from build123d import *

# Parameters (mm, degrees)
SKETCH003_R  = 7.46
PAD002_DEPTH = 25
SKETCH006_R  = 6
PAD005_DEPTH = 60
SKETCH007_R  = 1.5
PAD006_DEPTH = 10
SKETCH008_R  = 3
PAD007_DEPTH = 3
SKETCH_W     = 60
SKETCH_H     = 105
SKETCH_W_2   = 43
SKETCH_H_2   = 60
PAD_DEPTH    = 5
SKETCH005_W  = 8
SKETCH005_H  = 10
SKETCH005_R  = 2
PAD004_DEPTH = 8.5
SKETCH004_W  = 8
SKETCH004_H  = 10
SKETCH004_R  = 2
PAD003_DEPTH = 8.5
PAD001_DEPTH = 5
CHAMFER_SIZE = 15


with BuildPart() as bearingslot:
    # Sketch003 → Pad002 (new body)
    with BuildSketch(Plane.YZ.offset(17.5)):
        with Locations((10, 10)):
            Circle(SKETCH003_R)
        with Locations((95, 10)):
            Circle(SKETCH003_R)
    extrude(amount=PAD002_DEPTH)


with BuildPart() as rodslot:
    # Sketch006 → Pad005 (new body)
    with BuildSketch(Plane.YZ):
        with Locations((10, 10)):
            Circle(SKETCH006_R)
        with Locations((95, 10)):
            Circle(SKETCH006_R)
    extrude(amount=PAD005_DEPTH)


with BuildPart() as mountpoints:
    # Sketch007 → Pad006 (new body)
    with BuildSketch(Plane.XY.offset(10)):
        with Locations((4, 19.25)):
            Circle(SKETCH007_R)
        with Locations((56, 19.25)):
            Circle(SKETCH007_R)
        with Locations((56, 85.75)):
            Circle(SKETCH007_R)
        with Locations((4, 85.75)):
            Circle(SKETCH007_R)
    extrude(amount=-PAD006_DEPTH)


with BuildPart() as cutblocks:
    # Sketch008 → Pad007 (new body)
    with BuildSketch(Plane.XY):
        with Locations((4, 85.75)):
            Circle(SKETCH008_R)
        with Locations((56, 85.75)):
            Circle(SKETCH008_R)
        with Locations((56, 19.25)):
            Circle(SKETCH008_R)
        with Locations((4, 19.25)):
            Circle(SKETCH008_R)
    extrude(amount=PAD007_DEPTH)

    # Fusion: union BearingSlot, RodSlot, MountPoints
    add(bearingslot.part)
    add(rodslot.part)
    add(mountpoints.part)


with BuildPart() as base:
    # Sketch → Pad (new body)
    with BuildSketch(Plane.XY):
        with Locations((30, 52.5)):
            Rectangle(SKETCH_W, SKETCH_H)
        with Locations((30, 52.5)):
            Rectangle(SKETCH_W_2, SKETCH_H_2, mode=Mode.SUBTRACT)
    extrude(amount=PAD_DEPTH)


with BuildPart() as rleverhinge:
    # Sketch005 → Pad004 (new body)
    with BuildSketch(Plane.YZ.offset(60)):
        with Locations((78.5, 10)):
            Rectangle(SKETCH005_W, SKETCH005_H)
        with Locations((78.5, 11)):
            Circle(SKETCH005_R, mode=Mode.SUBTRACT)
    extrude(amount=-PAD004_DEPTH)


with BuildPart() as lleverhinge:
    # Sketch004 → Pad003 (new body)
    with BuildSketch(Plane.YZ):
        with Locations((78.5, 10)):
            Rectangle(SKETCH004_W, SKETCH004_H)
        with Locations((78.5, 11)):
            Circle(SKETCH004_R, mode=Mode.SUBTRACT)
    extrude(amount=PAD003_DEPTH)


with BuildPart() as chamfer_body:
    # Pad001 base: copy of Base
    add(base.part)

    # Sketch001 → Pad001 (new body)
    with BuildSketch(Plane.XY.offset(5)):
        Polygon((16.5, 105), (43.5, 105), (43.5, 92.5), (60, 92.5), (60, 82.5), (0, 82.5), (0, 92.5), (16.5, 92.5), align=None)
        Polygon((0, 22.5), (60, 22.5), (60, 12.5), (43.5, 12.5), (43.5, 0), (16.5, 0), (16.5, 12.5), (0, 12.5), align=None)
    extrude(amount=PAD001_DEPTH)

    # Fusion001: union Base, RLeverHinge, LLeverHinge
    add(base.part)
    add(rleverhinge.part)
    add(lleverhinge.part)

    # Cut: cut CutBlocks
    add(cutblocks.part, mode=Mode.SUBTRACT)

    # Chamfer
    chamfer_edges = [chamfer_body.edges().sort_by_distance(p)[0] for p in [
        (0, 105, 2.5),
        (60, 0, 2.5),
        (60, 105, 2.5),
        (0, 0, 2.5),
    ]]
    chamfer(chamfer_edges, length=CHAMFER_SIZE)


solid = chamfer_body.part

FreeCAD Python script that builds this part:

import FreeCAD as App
import Part
import Sketcher


def edges_at(feature, points):
    """Names of the edges that pass closest to the given points."""
    edges = feature.Shape.Edges
    near = lambda p: min(range(len(edges)), key=lambda i: edges[i].distToShape(Part.Vertex(*p))[0])
    return sorted({f"Edge{near(p) + 1}" for p in points})


def add_polygon(sketch, points):
    """Adds a closed chain of lines whose ends are joined by coincident constraints."""
    first, n = sketch.GeometryCount, len(points)
    for a, b in zip(points, points[1:] + points[:1]):
        sketch.addGeometry(Part.LineSegment(App.Vector(*a, 0), App.Vector(*b, 0)), False)
    for i in range(n):
        sketch.addConstraint(Sketcher.Constraint("Coincident", first + i, 2, first + (i + 1) % n, 1))

doc = App.newDocument("Part")
body = doc.addObject("PartDesign::Body", "Body")
body.AllowCompound = True

# Sketch on YZ plane
sketch1 = doc.addObject("Sketcher::SketchObject", "Sketch")
body.addObject(sketch1)
sketch1.AttachmentSupport = (doc.YZ_Plane, [""])
sketch1.MapMode = "FlatFace"
sketch1.AttachmentOffset = App.Placement(App.Vector(0, 0, 17.5), App.Rotation())
sketch1.addGeometry([
    Part.Circle(App.Vector(10, 10, 0), App.Vector(0, 0, 1), 7),
    Part.Circle(App.Vector(95, 10, 0), App.Vector(0, 0, 1), 7),
], False)
sketch1.addConstraint([
    Sketcher.Constraint("Equal", 0, 1),
    Sketcher.Constraint("Horizontal", 0, 3, 1, 3),
    Sketcher.Constraint("Diameter", 0, 14.92),
    Sketcher.Constraint("DistanceX", -1, 1, 0, 3, 10.0),
    Sketcher.Constraint("DistanceY", -1, 1, 0, 3, 10.0),
    Sketcher.Constraint("DistanceX", -1, 1, 1, 3, 95.0),
])
pad1 = doc.addObject("PartDesign::Pad", "Pad")
body.addObject(pad1)
pad1.Profile = sketch1
pad1.Length = 25
body2 = doc.addObject("PartDesign::Body", "Body001")
body2.AllowCompound = True

# Sketch on YZ plane
sketch2 = doc.addObject("Sketcher::SketchObject", "Sketch001")
body2.addObject(sketch2)
sketch2.AttachmentSupport = (doc.getObject("YZ_Plane001"), [""])
sketch2.MapMode = "FlatFace"
sketch2.addGeometry([
    Part.Circle(App.Vector(10, 10, 0), App.Vector(0, 0, 1), 6),
    Part.Circle(App.Vector(95, 10, 0), App.Vector(0, 0, 1), 6),
], False)
sketch2.addConstraint([
    Sketcher.Constraint("Equal", 0, 1),
    Sketcher.Constraint("Horizontal", 0, 3, 1, 3),
    Sketcher.Constraint("Diameter", 0, 12.0),
    Sketcher.Constraint("DistanceX", -1, 1, 0, 3, 10.0),
    Sketcher.Constraint("DistanceY", -1, 1, 0, 3, 10.0),
    Sketcher.Constraint("DistanceX", -1, 1, 1, 3, 95.0),
])
pad2 = doc.addObject("PartDesign::Pad", "Pad001")
body2.addObject(pad2)
pad2.Profile = sketch2
pad2.Length = 60
body3 = doc.addObject("PartDesign::Body", "Body002")
body3.AllowCompound = True

# Sketch on XY plane
sketch3 = doc.addObject("Sketcher::SketchObject", "Sketch002")
body3.addObject(sketch3)
sketch3.AttachmentSupport = (doc.getObject("XY_Plane002"), [""])
sketch3.MapMode = "FlatFace"
sketch3.AttachmentOffset = App.Placement(App.Vector(0, 0, 10), App.Rotation())
sketch3.addGeometry([
    Part.Circle(App.Vector(4, 19.2, 0), App.Vector(0, 0, 1), 1.5),
    Part.Circle(App.Vector(56, 19.2, 0), App.Vector(0, 0, 1), 1.5),
    Part.Circle(App.Vector(56, 85.8, 0), App.Vector(0, 0, 1), 1.5),
    Part.Circle(App.Vector(4, 85.8, 0), App.Vector(0, 0, 1), 1.5),
], False)
sketch3.addConstraint([
    Sketcher.Constraint("Equal", 0, 1),
    Sketcher.Constraint("Equal", 1, 2),
    Sketcher.Constraint("Equal", 2, 3),
    Sketcher.Constraint("Horizontal", 0, 3, 1, 3),
    Sketcher.Constraint("Horizontal", 2, 3, 3, 3),
    Sketcher.Constraint("Vertical", 1, 3, 2, 3),
    Sketcher.Constraint("Vertical", 0, 3, 3, 3),
    Sketcher.Constraint("Diameter", 0, 3.0),
    Sketcher.Constraint("DistanceX", -1, 1, 0, 3, 4.0),
    Sketcher.Constraint("DistanceX", -1, 1, 1, 3, 56.0),
    Sketcher.Constraint("DistanceY", 1, 3, 2, 3, 66.5),
    Sketcher.Constraint("DistanceY", -1, 1, 0, 3, 19.25),
])
pad3 = doc.addObject("PartDesign::Pad", "Pad002")
body3.addObject(pad3)
pad3.Profile = sketch3
pad3.Length = 10
pad3.Reversed = True
body4 = doc.addObject("PartDesign::Body", "Body003")
body4.AllowCompound = True

# Sketch on XY plane
sketch4 = doc.addObject("Sketcher::SketchObject", "Sketch003")
body4.addObject(sketch4)
sketch4.AttachmentSupport = (doc.getObject("XY_Plane003"), [""])
sketch4.MapMode = "FlatFace"
sketch4.addGeometry([
    Part.Circle(App.Vector(4, 85.8, 0), App.Vector(0, 0, 1), 3),
    Part.Circle(App.Vector(56, 85.8, 0), App.Vector(0, 0, 1), 3),
    Part.Circle(App.Vector(56, 19.2, 0), App.Vector(0, 0, 1), 3),
    Part.Circle(App.Vector(4, 19.2, 0), App.Vector(0, 0, 1), 3),
], False)
sketch4.addConstraint([
    Sketcher.Constraint("Equal", 0, 1),
    Sketcher.Constraint("Equal", 1, 2),
    Sketcher.Constraint("Equal", 2, 3),
    Sketcher.Constraint("Horizontal", 0, 3, 1, 3),
    Sketcher.Constraint("Horizontal", 2, 3, 3, 3),
    Sketcher.Constraint("Vertical", 1, 3, 2, 3),
    Sketcher.Constraint("Vertical", 0, 3, 3, 3),
    Sketcher.Constraint("Diameter", 0, 6.0),
    Sketcher.Constraint("DistanceX", -1, 1, 0, 3, 4.0),
    Sketcher.Constraint("DistanceX", -1, 1, 1, 3, 56.0),
    Sketcher.Constraint("DistanceY", 2, 3, 1, 3, 66.5),
    Sketcher.Constraint("DistanceY", -1, 1, 0, 3, 85.75),
])
pad4 = doc.addObject("PartDesign::Pad", "Pad003")
body4.addObject(pad4)
pad4.Profile = sketch4
pad4.Length = 3
doc.recompute()

boolean = doc.addObject("PartDesign::Boolean", "Boolean")
body4.addObject(boolean)
boolean.Type = "Fuse"
boolean.addObjects([body])
doc.recompute()

boolean2 = doc.addObject("PartDesign::Boolean", "Boolean001")
body4.addObject(boolean2)
boolean2.Type = "Fuse"
boolean2.addObjects([body2])
doc.recompute()

boolean3 = doc.addObject("PartDesign::Boolean", "Boolean002")
body4.addObject(boolean3)
boolean3.Type = "Fuse"
boolean3.addObjects([body3])
body5 = doc.addObject("PartDesign::Body", "Body004")

# Sketch on XY plane
sketch5 = doc.addObject("Sketcher::SketchObject", "Sketch004")
body5.addObject(sketch5)
sketch5.AttachmentSupport = (doc.getObject("XY_Plane004"), [""])
sketch5.MapMode = "FlatFace"
add_polygon(sketch5, [(0, 105), (0, 0), (60, 0), (60, 105)])  # lines 0-3
add_polygon(sketch5, [(52, 22), (8, 22), (8, 82), (52, 82)])  # lines 4-7
sketch5.addConstraint([
    Sketcher.Constraint("Vertical", 0),
    Sketcher.Constraint("Horizontal", 1),
    Sketcher.Constraint("Vertical", 2),
    Sketcher.Constraint("Horizontal", 3),
    Sketcher.Constraint("Horizontal", 4),
    Sketcher.Constraint("Vertical", 5),
    Sketcher.Constraint("Horizontal", 6),
    Sketcher.Constraint("Vertical", 7),
    Sketcher.Constraint("Coincident", 0, 2, -1, 1),
    Sketcher.Constraint("Equal", 3, 5),
    Sketcher.Constraint("DistanceX", 1, 1, 1, 2, 60.0),
    Sketcher.Constraint("DistanceX", 4, 2, 4, 1, 43.0),
    Sketcher.Constraint("DistanceY", 0, 2, 0, 1, 105.0),
    Sketcher.Constraint("DistanceX", -1, 1, 4, 2, 8.5),
    Sketcher.Constraint("DistanceY", -1, 1, 4, 2, 22.5),
])
pad5 = doc.addObject("PartDesign::Pad", "Pad004")
body5.addObject(pad5)
pad5.Profile = sketch5
pad5.Length = 5
body6 = doc.addObject("PartDesign::Body", "Body005")

# Sketch on YZ plane
sketch6 = doc.addObject("Sketcher::SketchObject", "Sketch005")
body6.addObject(sketch6)
sketch6.AttachmentSupport = (doc.getObject("YZ_Plane005"), [""])
sketch6.MapMode = "FlatFace"
sketch6.AttachmentOffset = App.Placement(App.Vector(0, 0, 60), App.Rotation())
add_polygon(sketch6, [(74.5, 15), (74.5, 5), (82.5, 5), (82.5, 15)])  # lines 0-3
sketch6.addGeometry(Part.Circle(App.Vector(78.5, 11, 0), App.Vector(0, 0, 1), 2), False)  # 4
sketch6.addConstraint([
    Sketcher.Constraint("Vertical", 0),
    Sketcher.Constraint("Horizontal", 1),
    Sketcher.Constraint("Vertical", 2),
    Sketcher.Constraint("Horizontal", 3),
    Sketcher.Constraint("Diameter", 4, 4.0),
    Sketcher.Constraint("DistanceX", 1, 1, 1, 2, 8.0),
    Sketcher.Constraint("DistanceY", 0, 2, 0, 1, 10.0),
    Sketcher.Constraint("DistanceY", -1, 1, 4, 3, 11.0),
    Sketcher.Constraint("DistanceY", -1, 1, 0, 2, 5.0),
    Sketcher.Constraint("DistanceX", 0, 2, 4, 3, 4.0),
    Sketcher.Constraint("DistanceX", -1, 1, 4, 3, 78.5),
])
pad6 = doc.addObject("PartDesign::Pad", "Pad005")
body6.addObject(pad6)
pad6.Profile = sketch6
pad6.Length = 8.5
pad6.Reversed = True
body7 = doc.addObject("PartDesign::Body", "Body006")

# Sketch on YZ plane
sketch7 = doc.addObject("Sketcher::SketchObject", "Sketch006")
body7.addObject(sketch7)
sketch7.AttachmentSupport = (doc.getObject("YZ_Plane006"), [""])
sketch7.MapMode = "FlatFace"
add_polygon(sketch7, [(74.5, 15), (74.5, 5), (82.5, 5), (82.5, 15)])  # lines 0-3
sketch7.addGeometry(Part.Circle(App.Vector(78.5, 11, 0), App.Vector(0, 0, 1), 2), False)  # 4
sketch7.addConstraint([
    Sketcher.Constraint("Vertical", 0),
    Sketcher.Constraint("Horizontal", 1),
    Sketcher.Constraint("Vertical", 2),
    Sketcher.Constraint("Horizontal", 3),
    Sketcher.Constraint("Diameter", 4, 4.0),
    Sketcher.Constraint("DistanceX", 1, 1, 1, 2, 8.0),
    Sketcher.Constraint("DistanceY", 0, 2, 0, 1, 10.0),
    Sketcher.Constraint("DistanceY", -1, 1, 4, 3, 11.0),
    Sketcher.Constraint("DistanceY", -1, 1, 0, 2, 5.0),
    Sketcher.Constraint("DistanceX", 0, 2, 4, 3, 4.0),
    Sketcher.Constraint("DistanceX", -1, 1, 4, 3, 78.5),
])
pad7 = doc.addObject("PartDesign::Pad", "Pad006")
body7.addObject(pad7)
pad7.Profile = sketch7
pad7.Length = 8.5
body8 = doc.addObject("PartDesign::Body", "Body007")
doc.recompute()

body8.BaseFeature = body5
doc.recompute()

# Sketch on XY plane
sketch8 = doc.addObject("Sketcher::SketchObject", "Sketch007")
body8.addObject(sketch8)
sketch8.AttachmentSupport = (doc.getObject("XY_Plane007"), [""])
sketch8.MapMode = "FlatFace"
sketch8.AttachmentOffset = App.Placement(App.Vector(0, 0, 5), App.Rotation())
add_polygon(sketch8, [(44, 105), (16, 105), (16, 92), (0, 92), (0, 82), (60, 82), (60, 92), (44, 92)])  # lines 0-7
add_polygon(sketch8, [(60, 22), (0, 22), (0, 12), (16, 12), (16, 0), (44, 0), (44, 12), (60, 12)])  # lines 8-15
sketch8.addConstraint([
    Sketcher.Constraint("Horizontal", 0),
    Sketcher.Constraint("Vertical", 1),
    Sketcher.Constraint("Horizontal", 2),
    Sketcher.Constraint("Vertical", 3),
    Sketcher.Constraint("Horizontal", 4),
    Sketcher.Constraint("Vertical", 5),
    Sketcher.Constraint("Horizontal", 6),
    Sketcher.Constraint("Vertical", 7),
    Sketcher.Constraint("Horizontal", 8),
    Sketcher.Constraint("Vertical", 9),
    Sketcher.Constraint("Horizontal", 10),
    Sketcher.Constraint("Vertical", 11),
    Sketcher.Constraint("Horizontal", 12),
    Sketcher.Constraint("Vertical", 13),
    Sketcher.Constraint("Horizontal", 14),
    Sketcher.Constraint("Vertical", 15),
    Sketcher.Constraint("PointOnObject", 2, 2, -2),
    Sketcher.Constraint("PointOnObject", 8, 2, -2),
    Sketcher.Constraint("PointOnObject", 11, 2, -1),
    Sketcher.Constraint("Horizontal", 2, 2, 5, 2),
    Sketcher.Constraint("Horizontal", 10, 2, 13, 2),
    Sketcher.Constraint("Vertical", 1, 2, 10, 2),
    Sketcher.Constraint("Vertical", 7, 2, 12, 2),
    Sketcher.Constraint("Vertical", 5, 2, 14, 2),
    Sketcher.Constraint("Equal", 2, 6),
    Sketcher.Constraint("Equal", 5, 9),
    Sketcher.Constraint("Equal", 7, 11),
    Sketcher.Constraint("DistanceX", 0, 2, 0, 1, 27.0),
    Sketcher.Constraint("DistanceX", 4, 1, 4, 2, 60.0),
    Sketcher.Constraint("DistanceY", 3, 2, 3, 1, 10.0),
    Sketcher.Constraint("DistanceY", 1, 2, 1, 1, 12.5),
    Sketcher.Constraint("DistanceY", -1, 1, 0, 2, 105.0),
])
pad8 = doc.addObject("PartDesign::Pad", "Pad007")
body8.addObject(pad8)
pad8.Profile = sketch8
pad8.Length = 5
doc.recompute()

boolean4 = doc.addObject("PartDesign::Boolean", "Boolean003")
body8.addObject(boolean4)
boolean4.Type = "Fuse"
boolean4.addObjects([body5])
doc.recompute()

boolean5 = doc.addObject("PartDesign::Boolean", "Boolean004")
body8.addObject(boolean5)
boolean5.Type = "Fuse"
boolean5.addObjects([body6])
doc.recompute()

boolean6 = doc.addObject("PartDesign::Boolean", "Boolean005")
body8.addObject(boolean6)
boolean6.Type = "Fuse"
boolean6.addObjects([body7])
doc.recompute()

boolean7 = doc.addObject("PartDesign::Boolean", "Boolean006")
body8.addObject(boolean7)
boolean7.Type = "Cut"
boolean7.addObjects([body4])
doc.recompute()

chamfer = doc.addObject("PartDesign::Chamfer", "Chamfer")
body8.addObject(chamfer)
chamfer.Base = (boolean7, edges_at(boolean7, [
    (0, 105, 2.5),
    (60, 0, 2.5),
    (60, 105, 2.5),
    (0, 0, 2.5),
]))
chamfer.Size = 15

doc.recompute()
